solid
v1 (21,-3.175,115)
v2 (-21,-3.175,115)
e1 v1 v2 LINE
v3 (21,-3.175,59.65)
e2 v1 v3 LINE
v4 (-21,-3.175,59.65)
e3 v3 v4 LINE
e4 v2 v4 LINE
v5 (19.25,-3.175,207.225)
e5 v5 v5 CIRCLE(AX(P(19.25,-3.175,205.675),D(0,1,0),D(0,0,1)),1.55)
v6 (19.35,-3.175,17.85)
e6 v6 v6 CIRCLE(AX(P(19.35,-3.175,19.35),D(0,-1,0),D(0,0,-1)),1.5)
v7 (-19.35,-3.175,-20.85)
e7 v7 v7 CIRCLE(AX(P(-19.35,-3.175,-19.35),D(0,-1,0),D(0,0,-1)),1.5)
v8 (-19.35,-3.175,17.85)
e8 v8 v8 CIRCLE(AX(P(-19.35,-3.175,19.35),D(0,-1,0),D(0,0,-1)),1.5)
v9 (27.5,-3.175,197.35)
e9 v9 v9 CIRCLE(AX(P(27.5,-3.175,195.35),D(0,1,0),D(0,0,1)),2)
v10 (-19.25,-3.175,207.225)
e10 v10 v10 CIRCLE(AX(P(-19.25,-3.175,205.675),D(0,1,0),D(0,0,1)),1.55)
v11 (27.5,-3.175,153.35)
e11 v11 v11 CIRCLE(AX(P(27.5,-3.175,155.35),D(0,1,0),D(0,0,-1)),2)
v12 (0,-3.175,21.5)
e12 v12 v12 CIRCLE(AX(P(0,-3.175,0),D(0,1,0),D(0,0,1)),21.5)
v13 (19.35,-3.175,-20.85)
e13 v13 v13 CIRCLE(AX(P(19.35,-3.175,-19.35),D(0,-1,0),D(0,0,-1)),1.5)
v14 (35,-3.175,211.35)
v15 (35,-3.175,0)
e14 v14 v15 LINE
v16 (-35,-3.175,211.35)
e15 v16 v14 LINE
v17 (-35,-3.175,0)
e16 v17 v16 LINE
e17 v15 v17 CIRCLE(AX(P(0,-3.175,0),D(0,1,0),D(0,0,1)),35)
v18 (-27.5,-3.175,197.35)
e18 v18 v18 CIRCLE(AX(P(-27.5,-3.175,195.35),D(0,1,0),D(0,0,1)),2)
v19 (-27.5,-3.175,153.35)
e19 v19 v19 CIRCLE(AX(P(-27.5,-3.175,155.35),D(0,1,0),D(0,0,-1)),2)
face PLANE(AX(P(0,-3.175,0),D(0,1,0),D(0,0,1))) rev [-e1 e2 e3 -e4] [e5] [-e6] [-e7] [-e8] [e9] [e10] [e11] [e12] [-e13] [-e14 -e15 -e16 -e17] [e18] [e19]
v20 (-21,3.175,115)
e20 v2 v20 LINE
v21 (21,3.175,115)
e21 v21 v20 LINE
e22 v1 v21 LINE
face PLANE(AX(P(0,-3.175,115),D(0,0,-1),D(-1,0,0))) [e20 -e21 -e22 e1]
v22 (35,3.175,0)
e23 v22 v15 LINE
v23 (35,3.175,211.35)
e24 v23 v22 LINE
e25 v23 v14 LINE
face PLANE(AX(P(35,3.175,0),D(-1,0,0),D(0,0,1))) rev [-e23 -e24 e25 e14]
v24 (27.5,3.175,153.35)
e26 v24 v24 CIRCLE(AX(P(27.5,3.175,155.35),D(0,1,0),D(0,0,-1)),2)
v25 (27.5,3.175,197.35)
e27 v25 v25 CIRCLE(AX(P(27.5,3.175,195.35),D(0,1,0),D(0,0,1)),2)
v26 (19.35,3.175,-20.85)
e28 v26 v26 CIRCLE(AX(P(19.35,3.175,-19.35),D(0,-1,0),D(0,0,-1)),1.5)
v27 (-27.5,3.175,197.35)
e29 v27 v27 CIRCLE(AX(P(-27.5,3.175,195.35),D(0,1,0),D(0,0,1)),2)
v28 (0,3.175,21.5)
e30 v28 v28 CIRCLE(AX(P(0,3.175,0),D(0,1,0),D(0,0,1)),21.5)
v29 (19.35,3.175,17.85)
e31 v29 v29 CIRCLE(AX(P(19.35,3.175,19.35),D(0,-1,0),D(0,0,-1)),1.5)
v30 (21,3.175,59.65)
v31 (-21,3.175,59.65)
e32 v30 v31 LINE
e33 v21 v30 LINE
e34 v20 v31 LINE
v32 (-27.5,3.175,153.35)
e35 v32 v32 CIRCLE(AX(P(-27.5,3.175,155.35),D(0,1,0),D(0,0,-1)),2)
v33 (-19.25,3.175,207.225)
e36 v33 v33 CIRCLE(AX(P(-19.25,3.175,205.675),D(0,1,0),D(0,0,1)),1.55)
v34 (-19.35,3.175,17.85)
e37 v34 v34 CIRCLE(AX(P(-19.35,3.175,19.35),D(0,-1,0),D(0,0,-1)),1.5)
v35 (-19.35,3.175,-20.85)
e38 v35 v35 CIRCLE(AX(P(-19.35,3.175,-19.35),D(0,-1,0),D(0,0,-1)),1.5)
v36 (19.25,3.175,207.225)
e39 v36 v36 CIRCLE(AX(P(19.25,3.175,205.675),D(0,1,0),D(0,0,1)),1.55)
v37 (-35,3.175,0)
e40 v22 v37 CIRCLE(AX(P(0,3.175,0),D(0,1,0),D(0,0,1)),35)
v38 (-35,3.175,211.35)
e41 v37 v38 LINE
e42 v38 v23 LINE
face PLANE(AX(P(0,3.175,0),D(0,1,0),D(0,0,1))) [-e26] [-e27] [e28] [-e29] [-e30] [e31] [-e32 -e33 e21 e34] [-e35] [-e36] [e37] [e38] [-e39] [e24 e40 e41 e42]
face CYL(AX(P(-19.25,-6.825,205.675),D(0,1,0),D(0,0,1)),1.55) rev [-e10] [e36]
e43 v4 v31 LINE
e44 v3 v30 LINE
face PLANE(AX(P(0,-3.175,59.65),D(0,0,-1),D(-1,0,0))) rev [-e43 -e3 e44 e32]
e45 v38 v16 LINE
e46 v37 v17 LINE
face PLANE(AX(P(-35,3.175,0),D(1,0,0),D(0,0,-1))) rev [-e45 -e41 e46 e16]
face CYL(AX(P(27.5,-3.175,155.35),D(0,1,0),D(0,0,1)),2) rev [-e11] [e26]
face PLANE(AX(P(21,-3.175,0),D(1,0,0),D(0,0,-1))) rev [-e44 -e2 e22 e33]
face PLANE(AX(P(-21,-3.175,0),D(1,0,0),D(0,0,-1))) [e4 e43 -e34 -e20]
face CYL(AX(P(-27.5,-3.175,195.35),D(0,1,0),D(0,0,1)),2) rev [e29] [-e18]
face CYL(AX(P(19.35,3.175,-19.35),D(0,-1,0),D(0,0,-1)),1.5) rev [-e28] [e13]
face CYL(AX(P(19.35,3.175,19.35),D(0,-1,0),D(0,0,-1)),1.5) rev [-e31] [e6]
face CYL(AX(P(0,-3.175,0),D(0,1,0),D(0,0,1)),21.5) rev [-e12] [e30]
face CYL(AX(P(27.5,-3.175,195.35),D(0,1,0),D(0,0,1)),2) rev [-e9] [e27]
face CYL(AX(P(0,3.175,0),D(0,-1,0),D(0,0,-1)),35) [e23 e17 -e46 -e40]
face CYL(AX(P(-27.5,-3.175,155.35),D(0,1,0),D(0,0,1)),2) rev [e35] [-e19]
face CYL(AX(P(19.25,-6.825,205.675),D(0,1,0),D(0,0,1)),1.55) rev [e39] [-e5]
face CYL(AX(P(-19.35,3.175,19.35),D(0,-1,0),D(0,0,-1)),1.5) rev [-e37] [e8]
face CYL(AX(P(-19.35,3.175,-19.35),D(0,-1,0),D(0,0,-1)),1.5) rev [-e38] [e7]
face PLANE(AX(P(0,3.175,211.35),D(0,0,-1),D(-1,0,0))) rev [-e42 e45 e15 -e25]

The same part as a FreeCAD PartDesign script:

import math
import FreeCAD as App
import Part
import Sketcher
Q = App.Units.Quantity


def add_polygon(sketch, points):
    """Adds a closed chain of lines whose ends are joined by coincident constraints."""
    first, n = sketch.GeometryCount, len(points)
    for a, b in zip(points, points[1:] + points[:1]):
        sketch.addGeometry(Part.LineSegment(App.Vector(*a, 0), App.Vector(*b, 0)), False)
    for i in range(n):
        sketch.addConstraint(Sketcher.Constraint("Coincident", first + i, 2, first + (i + 1) % n, 1))

doc = App.newDocument("Part")
params = doc.addObject("Spreadsheet::Sheet", "Params")
for row, (alias, value) in enumerate([
    ("sketch1_radius", "35 mm"),
    ("sketch1_height", "211.35 mm"),
    ("pad1_length", "6.35 mm"),
    ("sketch2_diameter", "43 mm"),
    ("sketch3_width", "42 mm"),
    ("sketch3_height", "55.35 mm"),
    ("sketch4_diameter", "3 mm"),
    ("sketch5_diameter", "4 mm"),
    ("sketch6_diameter", "3.1 mm"),
    ("pocket5_length", "10 mm"),
], start=1):
    params.set(f"A{row}", alias)
    params.set(f"B{row}", "=" + value)
    params.setAlias(f"B{row}", alias)

body = doc.addObject("PartDesign::Body", "Body")

# Sketch on XZ plane
sketch1 = body.newObject("Sketcher::SketchObject", "Sketch")
sketch1.AttachmentSupport = (doc.getObject("XZ_Plane"), [""])
sketch1.MapMode = "FlatFace"
sketch1.addGeometry(Part.LineSegment(App.Vector(35, 211, 0), App.Vector(35, 0, 0)), False)
sketch1.addGeometry(Part.ArcOfCircle(Part.Circle(App.Vector(0, 0, 0), App.Vector(0, 0, 1), 35), math.radians(180), math.radians(360)), False)
sketch1.addGeometry(Part.LineSegment(App.Vector(-35, 0, 0), App.Vector(-35, 211, 0)), False)
sketch1.addGeometry(Part.LineSegment(App.Vector(-35, 211, 0), App.Vector(35, 211, 0)), False)
sketch1.addConstraint(Sketcher.Constraint("Tangent", 0, 2, 1, 2))
sketch1.addConstraint(Sketcher.Constraint("Tangent", 1, 1, 2, 1))
sketch1.addConstraint(Sketcher.Constraint("Coincident", 2, 2, 3, 1))
sketch1.addConstraint(Sketcher.Constraint("Coincident", 3, 2, 0, 1))
sketch1.addConstraint(Sketcher.Constraint("Vertical", 0))
sketch1.addConstraint(Sketcher.Constraint("Vertical", 2))
sketch1.addConstraint(Sketcher.Constraint("Horizontal", 3))
sketch1.addConstraint(Sketcher.Constraint("Coincident", 1, 3, -1, 1))
sketch1.addConstraint(Sketcher.Constraint("Radius", 1, Q("35 mm")))
sketch1.addConstraint(Sketcher.Constraint("DistanceY", 0, 2, 0, 1, Q("211.35 mm")))
sketch1.setExpression("Constraints[8]", "Params.sketch1_radius")
sketch1.setExpression("Constraints[9]", "Params.sketch1_height")
pad1 = body.newObject("PartDesign::Pad", "Pad")
pad1.Profile = sketch1
pad1.setExpression("Length", "Params.pad1_length")
pad1.Midplane = True

# Sketch on XZ plane
sketch2 = body.newObject("Sketcher::SketchObject", "Sketch001")
sketch2.AttachmentSupport = (doc.getObject("XZ_Plane"), [""])
sketch2.MapMode = "FlatFace"
sketch2.AttachmentOffset = App.Placement(App.Vector(0, 0, -3.175), App.Rotation())
sketch2.addGeometry(Part.Circle(App.Vector(0, 0, 0), App.Vector(0, 0, 1), 22), False)
sketch2.addConstraint(Sketcher.Constraint("Coincident", 0, 3, -1, 1))
sketch2.addConstraint(Sketcher.Constraint("Diameter", 0, Q("43 mm")))
sketch2.setExpression("Constraints[1]", "Params.sketch2_diameter")
pocket1 = body.newObject("PartDesign::Pocket", "Pocket")
pocket1.Profile = sketch2
pocket1.Type = "ThroughAll"
pocket1.Reversed = True

# Sketch on XZ plane
sketch3 = body.newObject("Sketcher::SketchObject", "Sketch002")
sketch3.AttachmentSupport = (doc.getObject("XZ_Plane"), [""])
sketch3.MapMode = "FlatFace"
sketch3.AttachmentOffset = App.Placement(App.Vector(0, 0, -3.175), App.Rotation())
add_polygon(sketch3, [(-21, 60), (-21, 115), (21, 115), (21, 60)])  # lines 0-3
sketch3.addConstraint(Sketcher.Constraint("Vertical", 0))
sketch3.addConstraint(Sketcher.Constraint("Horizontal", 1))
sketch3.addConstraint(Sketcher.Constraint("Vertical", 2))
sketch3.addConstraint(Sketcher.Constraint("Horizontal", 3))
sketch3.addConstraint(Sketcher.Constraint("DistanceX", 1, 1, 1, 2, Q("42 mm")))
sketch3.addConstraint(Sketcher.Constraint("DistanceX", 0, 2, -1, 1, Q("21 mm")))
sketch3.addConstraint(Sketcher.Constraint("DistanceY", -1, 1, 0, 2, Q("115 mm")))
sketch3.addConstraint(Sketcher.Constraint("DistanceY", 0, 1, 0, 2, Q("55.35 mm")))
sketch3.setExpression("Constraints[8]", "Params.sketch3_width")
sketch3.setExpression("Constraints[11]", "Params.sketch3_height")
pocket2 = body.newObject("PartDesign::Pocket", "Pocket001")
pocket2.Profile = sketch3
pocket2.Type = "ThroughAll"
pocket2.Reversed = True

# Sketch on XZ plane
sketch4 = body.newObject("Sketcher::SketchObject", "Sketch003")
sketch4.AttachmentSupport = (doc.getObject("XZ_Plane"), [""])
sketch4.MapMode = "FlatFace"
sketch4.AttachmentOffset = App.Placement(App.Vector(0, 0, 3.175), App.Rotation())
sketch4.addGeometry(Part.Circle(App.Vector(-19.4, 19.4, 0), App.Vector(0, 0, 1), 1.5), False)
sketch4.addGeometry(Part.Circle(App.Vector(19.4, 19.4, 0), App.Vector(0, 0, 1), 1.5), False)
sketch4.addGeometry(Part.Circle(App.Vector(19.4, -19.4, 0), App.Vector(0, 0, 1), 1.5), False)
sketch4.addGeometry(Part.Circle(App.Vector(-19.4, -19.4, 0), App.Vector(0, 0, 1), 1.5), False)
sketch4.addConstraint(Sketcher.Constraint("Equal", 0, 1))
sketch4.addConstraint(Sketcher.Constraint("Equal", 1, 2))
sketch4.addConstraint(Sketcher.Constraint("Equal", 2, 3))
sketch4.addConstraint(Sketcher.Constraint("Symmetric", 0, 3, 2, 3, -1, 1))
sketch4.addConstraint(Sketcher.Constraint("Symmetric", 1, 3, 3, 3, -1, 1))
sketch4.addConstraint(Sketcher.Constraint("Symmetric", 0, 3, 1, 3, -2))
sketch4.addConstraint(Sketcher.Constraint("Diameter", 0, Q("3 mm")))
sketch4.addConstraint(Sketcher.Constraint("DistanceX", 0, 3, 1, 3, Q("38.7 mm")))
sketch4.addConstraint(Sketcher.Constraint("DistanceY", 2, 3, 1, 3, Q("38.7 mm")))
sketch4.setExpression("Constraints[6]", "Params.sketch4_diameter")
pocket3 = body.newObject("PartDesign::Pocket", "Pocket002")
pocket3.Profile = sketch4
pocket3.Type = "ThroughAll"

# Sketch on XZ plane
sketch5 = body.newObject("Sketcher::SketchObject", "Sketch004")
sketch5.AttachmentSupport = (doc.getObject("XZ_Plane"), [""])
sketch5.MapMode = "FlatFace"
sketch5.AttachmentOffset = App.Placement(App.Vector(0, 0, -3.175), App.Rotation())
sketch5.addGeometry(Part.Circle(App.Vector(15, 65.3, 0), App.Vector(0, 0, 1), 2), False)
sketch5.addGeometry(Part.Circle(App.Vector(-15, 65.3, 0), App.Vector(0, 0, 1), 2), False)
sketch5.addGeometry(Part.Circle(App.Vector(27.5, 195.3, 0), App.Vector(0, 0, 1), 2), False)
sketch5.addGeometry(Part.Circle(App.Vector(-27.5, 195.3, 0), App.Vector(0, 0, 1), 2), False)
sketch5.addGeometry(Part.Circle(App.Vector(27.5, 155.3, 0), App.Vector(0, 0, 1), 2), False)
sketch5.addGeometry(Part.Circle(App.Vector(-27.5, 155.3, 0), App.Vector(0, 0, 1), 2), False)
sketch5.addConstraint(Sketcher.Constraint("Equal", 0, 1))
sketch5.addConstraint(Sketcher.Constraint("Equal", 1, 2))
sketch5.addConstraint(Sketcher.Constraint("Equal", 2, 3))
sketch5.addConstraint(Sketcher.Constraint("Equal", 3, 4))
sketch5.addConstraint(Sketcher.Constraint("Equal", 4, 5))
sketch5.addConstraint(Sketcher.Constraint("Symmetric", 0, 3, 1, 3, -2))
sketch5.addConstraint(Sketcher.Constraint("Symmetric", 2, 3, 3, 3, -2))
sketch5.addConstraint(Sketcher.Constraint("Symmetric", 4, 3, 5, 3, -2))
sketch5.addConstraint(Sketcher.Constraint("Vertical", 2, 3, 4, 3))
sketch5.addConstraint(Sketcher.Constraint("Diameter", 0, Q("4 mm")))
sketch5.addConstraint(Sketcher.Constraint("DistanceX", -1, 1, 0, 3, Q("15 mm")))
sketch5.addConstraint(Sketcher.Constraint("DistanceY", 0, 3, 2, 3, Q("130 mm")))
sketch5.addConstraint(Sketcher.Constraint("DistanceX", 3, 3, 2, 3, Q("55 mm")))
sketch5.addConstraint(Sketcher.Constraint("DistanceY", 4, 3, 2, 3, Q("40 mm")))
sketch5.addConstraint(Sketcher.Constraint("DistanceY", -1, 1, 0, 3, Q("65.35 mm")))
sketch5.setExpression("Constraints[9]", "Params.sketch5_diameter")
pocket4 = body.newObject("PartDesign::Pocket", "Pocket003")
pocket4.Profile = sketch5
pocket4.Type = "ThroughAll"
pocket4.Reversed = True

# Sketch on XZ plane
sketch6 = body.newObject("Sketcher::SketchObject", "Sketch005")
sketch6.AttachmentSupport = (doc.getObject("XZ_Plane"), [""])
sketch6.MapMode = "FlatFace"
sketch6.AttachmentOffset = App.Placement(App.Vector(0, 0, -3.175), App.Rotation())
sketch6.addGeometry(Part.Circle(App.Vector(-19.2, 205.7, 0), App.Vector(0, 0, 1), 1.6), False)
sketch6.addGeometry(Part.Circle(App.Vector(19.2, 205.7, 0), App.Vector(0, 0, 1), 1.6), False)
sketch6.addConstraint(Sketcher.Constraint("Equal", 0, 1))
sketch6.addConstraint(Sketcher.Constraint("Symmetric", 0, 3, 1, 3, -2))
sketch6.addConstraint(Sketcher.Constraint("Diameter", 0, Q("3.1 mm")))
sketch6.addConstraint(Sketcher.Constraint("DistanceX", 0, 3, 1, 3, Q("38.5 mm")))
sketch6.addConstraint(Sketcher.Constraint("DistanceY", -1, 1, 0, 3, Q("205.675 mm")))
sketch6.setExpression("Constraints[2]", "Params.sketch6_diameter")
pocket5 = body.newObject("PartDesign::Pocket", "Pocket004")
pocket5.Profile = sketch6
pocket5.setExpression("Length", "Params.pocket5_length")
pocket5.Reversed = True

doc.recompute()
